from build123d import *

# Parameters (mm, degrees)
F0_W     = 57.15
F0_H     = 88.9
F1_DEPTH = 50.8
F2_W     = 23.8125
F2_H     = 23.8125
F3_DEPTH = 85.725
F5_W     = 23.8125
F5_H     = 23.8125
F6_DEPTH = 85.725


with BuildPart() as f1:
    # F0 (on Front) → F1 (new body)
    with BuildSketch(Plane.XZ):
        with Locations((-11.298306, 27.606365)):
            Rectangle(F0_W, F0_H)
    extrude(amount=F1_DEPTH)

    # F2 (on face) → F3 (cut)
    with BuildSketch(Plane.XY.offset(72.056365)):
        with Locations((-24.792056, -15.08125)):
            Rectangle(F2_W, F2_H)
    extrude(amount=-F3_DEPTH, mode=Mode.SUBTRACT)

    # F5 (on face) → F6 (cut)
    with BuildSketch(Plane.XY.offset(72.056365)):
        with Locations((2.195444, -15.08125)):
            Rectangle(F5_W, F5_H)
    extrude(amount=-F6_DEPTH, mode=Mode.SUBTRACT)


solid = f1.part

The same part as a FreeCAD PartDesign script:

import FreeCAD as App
import Part
import Sketcher
from FreeCAD import Vector
Q = App.Units.Quantity

doc = App.newDocument("Part")
params = doc.addObject("Spreadsheet::Sheet", "Params")
for row, (alias, value) in enumerate([
    ("sketch1_height", "3.5 in"),
    ("sketch1_width", "2.25 in"),
    ("pad1_length", "2 in"),
    ("sketch2_width", "0.9375 in"),
    ("pocket1_length", "3.375 in"),
    ("sketch3_width", "0.9375 in"),
    ("pocket2_length", "3.375 in"),
], start=1):
    params.set(f"A{row}", alias)
    params.set(f"B{row}", "=" + value)
    params.setAlias(f"B{row}", alias)

body = doc.addObject("PartDesign::Body", "Body")

# Sketch on XZ plane
sketch1 = doc.addObject("Sketcher::SketchObject", "Sketch")
body.addObject(sketch1)
sketch1.AttachmentSupport = (doc.XZ_Plane, [""])
sketch1.MapMode = "FlatFace"
sketch1.addGeometry([
    Part.LineSegment(Vector(-40, 72, 0), Vector(-40, -17, 0)),
    Part.LineSegment(Vector(-40, -17, 0), Vector(17, -17, 0)),
    Part.LineSegment(Vector(17, -17, 0), Vector(17, 72, 0)),
    Part.LineSegment(Vector(17, 72, 0), Vector(-40, 72, 0)),
], False)
sketch1.addConstraint([
    Sketcher.Constraint("Coincident", 0, 2, 1, 1),
    Sketcher.Constraint("Coincident", 1, 2, 2, 1),
    Sketcher.Constraint("Coincident", 2, 2, 3, 1),
    Sketcher.Constraint("Coincident", 3, 2, 0, 1),
    Sketcher.Constraint("Vertical", 0),
    Sketcher.Constraint("Horizontal", 1),
    Sketcher.Constraint("Vertical", 2),
    Sketcher.Constraint("Horizontal", 3),
    Sketcher.Constraint("DistanceY", 0, 2, 0, 1, Q("3.5 in")),
    Sketcher.Constraint("DistanceX", 1, 1, 1, 2, Q("2.25 in")),
    Sketcher.Constraint("DistanceX", 0, 2, -1, 1, Q("39.873306 mm")),
    Sketcher.Constraint("DistanceY", 0, 2, -1, 1, Q("16.843635 mm")),
])
sketch1.setExpression("Constraints[8]", "Params.sketch1_height")
sketch1.setExpression("Constraints[9]", "Params.sketch1_width")
pad1 = doc.addObject("PartDesign::Pad", "Pad")
body.addObject(pad1)
pad1.Profile = sketch1
pad1.setExpression("Length", "Params.pad1_length")

# Sketch on XY plane
sketch2 = doc.addObject("Sketcher::SketchObject", "Sketch001")
body.addObject(sketch2)
sketch2.AttachmentSupport = (doc.XY_Plane, [""])
sketch2.MapMode = "FlatFace"
sketch2.AttachmentOffset = App.Placement(Vector(0, 0, 72.056365), App.Rotation())
sketch2.addGeometry([
    Part.LineSegment(Vector(-37, -3, 0), Vector(-37, -27, 0)),
    Part.LineSegment(Vector(-37, -27, 0), Vector(-13, -27, 0)),
    Part.LineSegment(Vector(-13, -27, 0), Vector(-13, -3, 0)),
    Part.LineSegment(Vector(-13, -3, 0), Vector(-37, -3, 0)),
], False)
sketch2.addConstraint([
    Sketcher.Constraint("Coincident", 0, 2, 1, 1),
    Sketcher.Constraint("Coincident", 1, 2, 2, 1),
    Sketcher.Constraint("Coincident", 2, 2, 3, 1),
    Sketcher.Constraint("Coincident", 3, 2, 0, 1),
    Sketcher.Constraint("Vertical", 0),
    Sketcher.Constraint("Horizontal", 1),
    Sketcher.Constraint("Vertical", 2),
    Sketcher.Constraint("Horizontal", 3),
    Sketcher.Constraint("Equal", 3, 0),
    Sketcher.Constraint("DistanceX", 1, 1, 1, 2, Q("0.9375 in")),
    Sketcher.Constraint("DistanceY", 0, 2, -1, 1, Q("1.0625 in")),
    Sketcher.Constraint("DistanceX", 0, 2, -1, 1, Q("36.698306 mm")),
])
sketch2.setExpression("Constraints[9]", "Params.sketch2_width")
pocket1 = doc.addObject("PartDesign::Pocket", "Pocket")
body.addObject(pocket1)
pocket1.Profile = sketch2
pocket1.setExpression("Length", "Params.pocket1_length")

# Sketch on XY plane
sketch3 = doc.addObject("Sketcher::SketchObject", "Sketch002")
body.addObject(sketch3)
sketch3.AttachmentSupport = (doc.XY_Plane, [""])
sketch3.MapMode = "FlatFace"
sketch3.AttachmentOffset = App.Placement(Vector(0, 0, 72.056365), App.Rotation())
sketch3.addGeometry([
    Part.LineSegment(Vector(-10, -3, 0), Vector(-10, -27, 0)),
    Part.LineSegment(Vector(-10, -27, 0), Vector(14, -27, 0)),
    Part.LineSegment(Vector(14, -27, 0), Vector(14, -3, 0)),
    Part.LineSegment(Vector(14, -3, 0), Vector(-10, -3, 0)),
], False)
sketch3.addConstraint([
    Sketcher.Constraint("Coincident", 0, 2, 1, 1),
    Sketcher.Constraint("Coincident", 1, 2, 2, 1),
    Sketcher.Constraint("Coincident", 2, 2, 3, 1),
    Sketcher.Constraint("Coincident", 3, 2, 0, 1),
    Sketcher.Constraint("Vertical", 0),
    Sketcher.Constraint("Horizontal", 1),
    Sketcher.Constraint("Vertical", 2),
    Sketcher.Constraint("Horizontal", 3),
    Sketcher.Constraint("Equal", 3, 0),
    Sketcher.Constraint("DistanceX", 1, 1, 1, 2, Q("0.9375 in")),
    Sketcher.Constraint("DistanceY", 0, 2, -1, 1, Q("1.0625 in")),
    Sketcher.Constraint("DistanceX", 0, 2, -1, 1, Q("9.710806 mm")),
])
sketch3.setExpression("Constraints[9]", "Params.sketch3_width")
pocket2 = doc.addObject("PartDesign::Pocket", "Pocket001")
body.addObject(pocket2)
pocket2.Profile = sketch3
pocket2.setExpression("Length", "Params.pocket2_length")

doc.recompute()
